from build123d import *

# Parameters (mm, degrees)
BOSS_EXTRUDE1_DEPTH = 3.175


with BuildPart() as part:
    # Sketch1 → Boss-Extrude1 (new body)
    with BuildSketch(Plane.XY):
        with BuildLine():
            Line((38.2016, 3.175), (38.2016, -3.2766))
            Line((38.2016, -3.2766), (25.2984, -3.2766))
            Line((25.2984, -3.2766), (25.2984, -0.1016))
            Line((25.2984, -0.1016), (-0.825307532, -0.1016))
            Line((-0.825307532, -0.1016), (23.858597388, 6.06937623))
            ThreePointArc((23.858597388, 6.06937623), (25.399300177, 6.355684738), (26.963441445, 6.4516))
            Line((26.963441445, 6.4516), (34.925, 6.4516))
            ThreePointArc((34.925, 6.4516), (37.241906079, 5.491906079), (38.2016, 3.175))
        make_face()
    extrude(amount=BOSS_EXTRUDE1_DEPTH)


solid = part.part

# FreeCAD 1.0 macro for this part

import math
import FreeCAD as App
import Part
import Sketcher
from FreeCAD import Vector
Q = App.Units.Quantity

doc = App.newDocument("Part")
body = doc.addObject("PartDesign::Body", "Body")

# Sketch on XY plane
sketch1 = body.newObject("Sketcher::SketchObject", "Sketch")
sketch1.AttachmentSupport = (doc.getObject("XY_Plane"), [""])
sketch1.MapMode = "FlatFace"
sketch1.addGeometry(Part.LineSegment(Vector(38.2016, -3.2766, 0), Vector(38.2016, 3.175, 0)), False)
sketch1.addGeometry(Part.ArcOfCircle(Part.Circle(Vector(34.925, 3.175, 0), Vector(0, 0, 1), 3.2766), math.radians(0), math.radians(90)), False)
sketch1.addGeometry(Part.LineSegment(Vector(34.925, 6.4516, 0), Vector(26.963441, 6.4516, 0)), False)
sketch1.addGeometry(Part.ArcOfCircle(Part.Circle(Vector(26.963441, -6.35, 0), Vector(0, 0, 1), 12.8016), math.radians(90), math.radians(104.036243)), False)
sketch1.addGeometry(Part.LineSegment(Vector(23.858597, 6.069376, 0), Vector(-0.825308, -0.1016, 0)), False)
sketch1.addGeometry(Part.LineSegment(Vector(-0.825308, -0.1016, 0), Vector(25.2984, -0.1016, 0)), False)
sketch1.addGeometry(Part.LineSegment(Vector(25.2984, -0.1016, 0), Vector(25.2984, -3.2766, 0)), False)
sketch1.addGeometry(Part.LineSegment(Vector(25.2984, -3.2766, 0), Vector(38.2016, -3.2766, 0)), False)
sketch1.addConstraint(Sketcher.Constraint("Tangent", 0, 2, 1, 1))
sketch1.addConstraint(Sketcher.Constraint("Tangent", 1, 2, 2, 1))
sketch1.addConstraint(Sketcher.Constraint("Tangent", 2, 2, 3, 1))
sketch1.addConstraint(Sketcher.Constraint("Tangent", 3, 2, 4, 1))
sketch1.addConstraint(Sketcher.Constraint("Coincident", 4, 2, 5, 1))
sketch1.addConstraint(Sketcher.Constraint("Coincident", 5, 2, 6, 1))
sketch1.addConstraint(Sketcher.Constraint("Coincident", 6, 2, 7, 1))
sketch1.addConstraint(Sketcher.Constraint("Coincident", 7, 2, 0, 1))
sketch1.addConstraint(Sketcher.Constraint("Vertical", 0))
sketch1.addConstraint(Sketcher.Constraint("Horizontal", 2))
sketch1.addConstraint(Sketcher.Constraint("Horizontal", 5))
sketch1.addConstraint(Sketcher.Constraint("Vertical", 6))
sketch1.addConstraint(Sketcher.Constraint("Horizontal", 7))
sketch1.addConstraint(Sketcher.Constraint("Radius", 1, Q("0.129 in")))
sketch1.addConstraint(Sketcher.Constraint("Radius", 3, Q("0.504 in")))
sketch1.addConstraint(Sketcher.Constraint("DistanceX", 7, 1, 7, 2, Q("0.508 in")))
sketch1.addConstraint(Sketcher.Constraint("DistanceY", 0, 1, 0, 2, Q("0.254 in")))
sketch1.addConstraint(Sketcher.Constraint("DistanceY", 6, 2, 6, 1, Q("0.125 in")))
sketch1.addConstraint(Sketcher.Constraint("DistanceY", 3, 3, -1, 1, Q("0.25 in")))
sketch1.addConstraint(Sketcher.Constraint("DistanceX", -1, 1, 1, 3, Q("1.375 in")))
sketch1.addConstraint(Sketcher.Constraint("DistanceX", 2, 2, 2, 1, 7.961559))
sketch1.addConstraint(Sketcher.Constraint("DistanceX", 5, 1, 5, 2, 26.123708))
pad1 = body.newObject("PartDesign::Pad", "Pad")
pad1.Profile = sketch1
pad1.Length = Q("0.125 in")

doc.recompute()
